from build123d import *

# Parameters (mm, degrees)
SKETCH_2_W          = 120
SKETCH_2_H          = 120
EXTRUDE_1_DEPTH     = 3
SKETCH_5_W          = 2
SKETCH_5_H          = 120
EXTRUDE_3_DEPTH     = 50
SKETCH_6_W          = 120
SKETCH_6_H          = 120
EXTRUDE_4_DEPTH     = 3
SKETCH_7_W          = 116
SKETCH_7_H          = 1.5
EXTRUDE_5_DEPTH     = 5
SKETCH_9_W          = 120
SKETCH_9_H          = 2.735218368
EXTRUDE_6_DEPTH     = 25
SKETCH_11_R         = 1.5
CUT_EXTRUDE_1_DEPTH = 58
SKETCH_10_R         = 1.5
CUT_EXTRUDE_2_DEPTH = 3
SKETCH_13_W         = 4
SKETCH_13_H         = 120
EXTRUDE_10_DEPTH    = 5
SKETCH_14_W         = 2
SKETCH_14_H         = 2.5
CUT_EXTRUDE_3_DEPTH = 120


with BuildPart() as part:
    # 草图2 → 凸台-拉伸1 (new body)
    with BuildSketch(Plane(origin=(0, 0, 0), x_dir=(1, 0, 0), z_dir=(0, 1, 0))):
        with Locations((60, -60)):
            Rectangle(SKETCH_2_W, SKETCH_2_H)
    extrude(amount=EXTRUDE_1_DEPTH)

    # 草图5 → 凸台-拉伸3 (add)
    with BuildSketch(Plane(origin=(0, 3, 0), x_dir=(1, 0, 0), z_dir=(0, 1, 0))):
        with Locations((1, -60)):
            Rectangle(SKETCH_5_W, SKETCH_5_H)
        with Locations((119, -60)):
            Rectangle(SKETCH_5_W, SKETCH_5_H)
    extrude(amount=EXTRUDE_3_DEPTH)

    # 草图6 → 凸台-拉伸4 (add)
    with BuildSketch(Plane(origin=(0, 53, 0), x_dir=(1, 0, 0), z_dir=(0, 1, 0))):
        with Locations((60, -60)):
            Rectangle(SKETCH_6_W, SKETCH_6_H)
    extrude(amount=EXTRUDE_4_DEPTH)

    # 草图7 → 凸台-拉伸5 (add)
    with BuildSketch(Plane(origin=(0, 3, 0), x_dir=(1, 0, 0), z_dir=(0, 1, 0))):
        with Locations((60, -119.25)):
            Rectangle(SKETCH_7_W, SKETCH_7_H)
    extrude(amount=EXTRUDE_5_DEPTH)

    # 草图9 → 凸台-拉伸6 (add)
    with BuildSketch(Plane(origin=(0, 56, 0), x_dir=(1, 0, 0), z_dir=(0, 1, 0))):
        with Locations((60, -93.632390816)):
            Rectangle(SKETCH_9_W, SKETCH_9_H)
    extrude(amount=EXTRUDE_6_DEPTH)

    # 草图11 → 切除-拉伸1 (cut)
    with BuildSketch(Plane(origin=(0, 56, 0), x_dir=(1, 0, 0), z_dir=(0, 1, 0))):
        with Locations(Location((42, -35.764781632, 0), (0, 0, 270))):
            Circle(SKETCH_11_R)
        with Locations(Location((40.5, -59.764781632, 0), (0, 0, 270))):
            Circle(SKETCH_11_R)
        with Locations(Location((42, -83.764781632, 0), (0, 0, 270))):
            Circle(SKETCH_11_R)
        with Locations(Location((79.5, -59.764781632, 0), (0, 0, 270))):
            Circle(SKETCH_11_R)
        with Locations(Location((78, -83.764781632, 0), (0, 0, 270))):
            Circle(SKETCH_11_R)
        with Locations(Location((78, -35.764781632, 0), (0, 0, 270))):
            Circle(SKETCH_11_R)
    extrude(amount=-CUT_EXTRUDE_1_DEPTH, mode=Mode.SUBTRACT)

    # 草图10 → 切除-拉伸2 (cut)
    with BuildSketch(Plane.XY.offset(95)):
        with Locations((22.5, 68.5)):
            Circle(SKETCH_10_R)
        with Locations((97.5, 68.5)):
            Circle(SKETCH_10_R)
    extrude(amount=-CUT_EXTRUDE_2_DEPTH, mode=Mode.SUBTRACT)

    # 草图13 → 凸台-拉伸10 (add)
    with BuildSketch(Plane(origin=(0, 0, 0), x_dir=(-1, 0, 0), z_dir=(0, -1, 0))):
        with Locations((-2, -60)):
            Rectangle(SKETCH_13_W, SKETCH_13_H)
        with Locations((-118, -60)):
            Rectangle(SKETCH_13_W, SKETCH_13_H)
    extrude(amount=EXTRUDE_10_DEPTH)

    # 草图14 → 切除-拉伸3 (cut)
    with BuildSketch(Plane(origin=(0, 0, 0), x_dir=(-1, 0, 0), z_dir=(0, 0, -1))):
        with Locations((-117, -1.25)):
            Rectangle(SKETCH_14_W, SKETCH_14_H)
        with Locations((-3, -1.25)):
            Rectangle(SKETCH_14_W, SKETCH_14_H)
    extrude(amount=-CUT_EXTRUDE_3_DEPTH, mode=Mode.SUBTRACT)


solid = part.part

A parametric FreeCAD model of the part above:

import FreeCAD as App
import Part
import Sketcher
Q = App.Units.Quantity

doc = App.newDocument("Part")
body = doc.addObject("PartDesign::Body", "Body")

sketch1 = doc.addObject("Sketcher::SketchObject", "Sketch")
body.addObject(sketch1)
sketch1.AttachmentSupport = (doc.XZ_Plane, [""])
sketch1.MapMode = "FlatFace"
sketch1.addGeometry([
    Part.LineSegment(App.Vector(0, 0, 0), App.Vector(0, 120, 0)),
    Part.LineSegment(App.Vector(0, 120, 0), App.Vector(120, 120, 0)),
    Part.LineSegment(App.Vector(120, 120, 0), App.Vector(120, 0, 0)),
    Part.LineSegment(App.Vector(120, 0, 0), App.Vector(0, 0, 0)),
], False)
sketch1.addConstraint([
    Sketcher.Constraint("Coincident", 0, 2, 1, 1),
    Sketcher.Constraint("Coincident", 1, 2, 2, 1),
    Sketcher.Constraint("Coincident", 2, 2, 3, 1),
    Sketcher.Constraint("Coincident", 3, 2, 0, 1),
    Sketcher.Constraint("Vertical", 0),
    Sketcher.Constraint("Horizontal", 1),
    Sketcher.Constraint("Vertical", 2),
    Sketcher.Constraint("Horizontal", 3),
    Sketcher.Constraint("Coincident", 3, 2, -1, 1),
    Sketcher.Constraint("Equal", 3, 0),
    Sketcher.Constraint("DistanceX", 1, 1, 1, 2, Q("120 mm")),
])
pad1 = doc.addObject("PartDesign::Pad", "Pad")
body.addObject(pad1)
pad1.Profile = sketch1
pad1.Length = 3
pad1.Reversed = True

sketch2 = doc.addObject("Sketcher::SketchObject", "Sketch001")
body.addObject(sketch2)
sketch2.AttachmentSupport = (doc.XZ_Plane, [""])
sketch2.MapMode = "FlatFace"
sketch2.AttachmentOffset = App.Placement(App.Vector(0, 0, -3), App.Rotation())
sketch2.addGeometry([
    Part.LineSegment(App.Vector(0, 0, 0), App.Vector(0, 120, 0)),
    Part.LineSegment(App.Vector(0, 120, 0), App.Vector(2, 120, 0)),
    Part.LineSegment(App.Vector(2, 120, 0), App.Vector(2, 0, 0)),
    Part.LineSegment(App.Vector(2, 0, 0), App.Vector(0, 0, 0)),
    Part.LineSegment(App.Vector(118, 0, 0), App.Vector(118, 120, 0)),
    Part.LineSegment(App.Vector(118, 120, 0), App.Vector(120, 120, 0)),
    Part.LineSegment(App.Vector(120, 120, 0), App.Vector(120, 0, 0)),
    Part.LineSegment(App.Vector(120, 0, 0), App.Vector(118, 0, 0)),
], False)
sketch2.addConstraint([
    Sketcher.Constraint("Coincident", 0, 2, 1, 1),
    Sketcher.Constraint("Coincident", 1, 2, 2, 1),
    Sketcher.Constraint("Coincident", 2, 2, 3, 1),
    Sketcher.Constraint("Coincident", 3, 2, 0, 1),
    Sketcher.Constraint("Coincident", 4, 2, 5, 1),
    Sketcher.Constraint("Coincident", 5, 2, 6, 1),
    Sketcher.Constraint("Coincident", 6, 2, 7, 1),
    Sketcher.Constraint("Coincident", 7, 2, 4, 1),
    Sketcher.Constraint("Vertical", 0),
    Sketcher.Constraint("Horizontal", 1),
    Sketcher.Constraint("Vertical", 2),
    Sketcher.Constraint("Horizontal", 3),
    Sketcher.Constraint("Vertical", 4),
    Sketcher.Constraint("Horizontal", 5),
    Sketcher.Constraint("Vertical", 6),
    Sketcher.Constraint("Horizontal", 7),
    Sketcher.Constraint("Coincident", 3, 2, -1, 1),
    Sketcher.Constraint("PointOnObject", 6, 2, -1),
    Sketcher.Constraint("Horizontal", 1, 2, 4, 2),
    Sketcher.Constraint("Equal", 3, 5),
    Sketcher.Constraint("DistanceX", 1, 1, 1, 2, Q("2 mm")),
    Sketcher.Constraint("DistanceY", 0, 1, 0, 2, Q("120 mm")),
    Sketcher.Constraint("DistanceX", -1, 1, 4, 2, Q("118 mm")),
])
pad2 = doc.addObject("PartDesign::Pad", "Pad001")
body.addObject(pad2)
pad2.Profile = sketch2
pad2.Length = 50
pad2.Reversed = True

sketch3 = doc.addObject("Sketcher::SketchObject", "Sketch002")
body.addObject(sketch3)
sketch3.AttachmentSupport = (doc.XZ_Plane, [""])
sketch3.MapMode = "FlatFace"
sketch3.AttachmentOffset = App.Placement(App.Vector(0, 0, -53), App.Rotation())
sketch3.addGeometry([
    Part.LineSegment(App.Vector(0, 0, 0), App.Vector(0, 120, 0)),
    Part.LineSegment(App.Vector(0, 120, 0), App.Vector(120, 120, 0)),
    Part.LineSegment(App.Vector(120, 120, 0), App.Vector(120, 0, 0)),
    Part.LineSegment(App.Vector(120, 0, 0), App.Vector(0, 0, 0)),
], False)
sketch3.addConstraint([
    Sketcher.Constraint("Coincident", 0, 2, 1, 1),
    Sketcher.Constraint("Coincident", 1, 2, 2, 1),
    Sketcher.Constraint("Coincident", 2, 2, 3, 1),
    Sketcher.Constraint("Coincident", 3, 2, 0, 1),
    Sketcher.Constraint("Vertical", 0),
    Sketcher.Constraint("Horizontal", 1),
    Sketcher.Constraint("Vertical", 2),
    Sketcher.Constraint("Horizontal", 3),
    Sketcher.Constraint("Coincident", 3, 2, -1, 1),
    Sketcher.Constraint("Equal", 3, 0),
    Sketcher.Constraint("DistanceX", 1, 1, 1, 2, Q("120 mm")),
])
pad3 = doc.addObject("PartDesign::Pad", "Pad002")
body.addObject(pad3)
pad3.Profile = sketch3
pad3.Length = 3
pad3.Reversed = True

sketch4 = doc.addObject("Sketcher::SketchObject", "Sketch003")
body.addObject(sketch4)
sketch4.AttachmentSupport = (doc.XZ_Plane, [""])
sketch4.MapMode = "FlatFace"
sketch4.AttachmentOffset = App.Placement(App.Vector(0, 0, -3), App.Rotation())
sketch4.addGeometry([
    Part.LineSegment(App.Vector(2, 118.5, 0), App.Vector(2, 120, 0)),
    Part.LineSegment(App.Vector(2, 120, 0), App.Vector(118, 120, 0)),
    Part.LineSegment(App.Vector(118, 120, 0), App.Vector(118, 118.5, 0)),
    Part.LineSegment(App.Vector(118, 118.5, 0), App.Vector(2, 118.5, 0)),
], False)
sketch4.addConstraint([
    Sketcher.Constraint("Coincident", 0, 2, 1, 1),
    Sketcher.Constraint("Coincident", 1, 2, 2, 1),
    Sketcher.Constraint("Coincident", 2, 2, 3, 1),
    Sketcher.Constraint("Coincident", 3, 2, 0, 1),
    Sketcher.Constraint("Vertical", 0),
    Sketcher.Constraint("Horizontal", 1),
    Sketcher.Constraint("Vertical", 2),
    Sketcher.Constraint("Horizontal", 3),
    Sketcher.Constraint("DistanceX", 1, 1, 1, 2, Q("116 mm")),
    Sketcher.Constraint("DistanceY", 0, 1, 0, 2, Q("1.5 mm")),
    Sketcher.Constraint("DistanceX", -1, 1, 0, 2, Q("2 mm")),
    Sketcher.Constraint("DistanceY", -1, 1, 0, 2, Q("120 mm")),
])
pad4 = doc.addObject("PartDesign::Pad", "Pad003")
body.addObject(pad4)
pad4.Profile = sketch4
pad4.Length = 5
pad4.Reversed = True

sketch5 = doc.addObject("Sketcher::SketchObject", "Sketch004")
body.addObject(sketch5)
sketch5.AttachmentSupport = (doc.XZ_Plane, [""])
sketch5.MapMode = "FlatFace"
sketch5.AttachmentOffset = App.Placement(App.Vector(0, 0, -56), App.Rotation())
sketch5.addGeometry([
    Part.LineSegment(App.Vector(0, 92.3, 0), App.Vector(0, 95, 0)),
    Part.LineSegment(App.Vector(0, 95, 0), App.Vector(120, 95, 0)),
    Part.LineSegment(App.Vector(120, 95, 0), App.Vector(120, 92.3, 0)),
    Part.LineSegment(App.Vector(120, 92.3, 0), App.Vector(0, 92.3, 0)),
], False)
sketch5.addConstraint([
    Sketcher.Constraint("Coincident", 0, 2, 1, 1),
    Sketcher.Constraint("Coincident", 1, 2, 2, 1),
    Sketcher.Constraint("Coincident", 2, 2, 3, 1),
    Sketcher.Constraint("Coincident", 3, 2, 0, 1),
    Sketcher.Constraint("Vertical", 0),
    Sketcher.Constraint("Horizontal", 1),
    Sketcher.Constraint("Vertical", 2),
    Sketcher.Constraint("Horizontal", 3),
    Sketcher.Constraint("PointOnObject", 0, 2, -2),
    Sketcher.Constraint("DistanceX", 1, 1, 1, 2, Q("120 mm")),
    Sketcher.Constraint("DistanceY", -1, 1, 0, 2, Q("95 mm")),
    Sketcher.Constraint("DistanceY", 0, 1, 0, 2, Q("2.735218 mm")),
])
pad5 = doc.addObject("PartDesign::Pad", "Pad004")
body.addObject(pad5)
pad5.Profile = sketch5
pad5.Length = 25
pad5.Reversed = True

sketch6 = doc.addObject("Sketcher::SketchObject", "Sketch005")
body.addObject(sketch6)
sketch6.AttachmentSupport = (doc.XZ_Plane, [""])
sketch6.MapMode = "FlatFace"
sketch6.AttachmentOffset = App.Placement(App.Vector(0, 0, -56), App.Rotation())
sketch6.addGeometry([
    Part.Circle(App.Vector(42, 35.8, 0), App.Vector(0, 0, 1), 1.5),
    Part.Circle(App.Vector(40.5, 59.8, 0), App.Vector(0, 0, 1), 1.5),
    Part.Circle(App.Vector(42, 83.8, 0), App.Vector(0, 0, 1), 1.5),
    Part.Circle(App.Vector(79.5, 59.8, 0), App.Vector(0, 0, 1), 1.5),
    Part.Circle(App.Vector(78, 83.8, 0), App.Vector(0, 0, 1), 1.5),
    Part.Circle(App.Vector(78, 35.8, 0), App.Vector(0, 0, 1), 1.5),
], False)
sketch6.addConstraint([
    Sketcher.Constraint("Equal", 0, 1),
    Sketcher.Constraint("Equal", 1, 2),
    Sketcher.Constraint("Equal", 2, 3),
    Sketcher.Constraint("Equal", 3, 4),
    Sketcher.Constraint("Equal", 4, 5),
    Sketcher.Constraint("Horizontal", 1, 3, 3, 3),
    Sketcher.Constraint("Horizontal", 2, 3, 4, 3),
    Sketcher.Constraint("Horizontal", 0, 3, 5, 3),
    Sketcher.Constraint("Vertical", 0, 3, 2, 3),
    Sketcher.Constraint("Vertical", 4, 3, 5, 3),
    Sketcher.Constraint("Diameter", 0, Q("3 mm")),
    Sketcher.Constraint("DistanceX", -1, 1, 0, 3, Q("42 mm")),
    Sketcher.Constraint("DistanceX", -1, 1, 4, 3, Q("78 mm")),
    Sketcher.Constraint("DistanceY", 0, 3, 1, 3, Q("24 mm")),
    Sketcher.Constraint("DistanceY", 1, 3, 2, 3, Q("24 mm")),
    Sketcher.Constraint("DistanceX", 1, 3, 3, 3, Q("39 mm")),
    Sketcher.Constraint("DistanceX", -1, 1, 1, 3, Q("40.5 mm")),
    Sketcher.Constraint("DistanceY", -1, 1, 0, 3, Q("35.764782 mm")),
])
pocket1 = doc.addObject("PartDesign::Pocket", "Pocket")
body.addObject(pocket1)
pocket1.Profile = sketch6
pocket1.Length = 58
pocket1.Reversed = True

sketch7 = doc.addObject("Sketcher::SketchObject", "Sketch006")
body.addObject(sketch7)
sketch7.AttachmentSupport = (doc.XY_Plane, [""])
sketch7.MapMode = "FlatFace"
sketch7.AttachmentOffset = App.Placement(App.Vector(0, 0, 95), App.Rotation())
sketch7.addGeometry([
    Part.Circle(App.Vector(22.5, 68.5, 0), App.Vector(0, 0, 1), 1.5),
    Part.Circle(App.Vector(97.5, 68.5, 0), App.Vector(0, 0, 1), 1.5),
], False)
sketch7.addConstraint([
    Sketcher.Constraint("Equal", 0, 1),
    Sketcher.Constraint("Horizontal", 0, 3, 1, 3),
    Sketcher.Constraint("Diameter", 0, Q("3 mm")),
    Sketcher.Constraint("DistanceX", 0, 3, 1, 3, Q("75 mm")),
    Sketcher.Constraint("DistanceX", -1, 1, 0, 3, Q("22.5 mm")),
    Sketcher.Constraint("DistanceY", -1, 1, 0, 3, Q("68.5 mm")),
])
pocket2 = doc.addObject("PartDesign::Pocket", "Pocket001")
body.addObject(pocket2)
pocket2.Profile = sketch7
pocket2.Length = 3

sketch8 = doc.addObject("Sketcher::SketchObject", "Sketch007")
body.addObject(sketch8)
sketch8.AttachmentSupport = (doc.XZ_Plane, [""])
sketch8.MapMode = "FlatFace"
sketch8.addGeometry([
    Part.LineSegment(App.Vector(4, 0, 0), App.Vector(4, 120, 0)),
    Part.LineSegment(App.Vector(4, 120, 0), App.Vector(0, 120, 0)),
    Part.LineSegment(App.Vector(0, 120, 0), App.Vector(0, 0, 0)),
    Part.LineSegment(App.Vector(0, 0, 0), App.Vector(4, 0, 0)),
    Part.LineSegment(App.Vector(120, 0, 0), App.Vector(120, 120, 0)),
    Part.LineSegment(App.Vector(120, 120, 0), App.Vector(116, 120, 0)),
    Part.LineSegment(App.Vector(116, 120, 0), App.Vector(116, 0, 0)),
    Part.LineSegment(App.Vector(116, 0, 0), App.Vector(120, 0, 0)),
], False)
sketch8.addConstraint([
    Sketcher.Constraint("Coincident", 0, 2, 1, 1),
    Sketcher.Constraint("Coincident", 1, 2, 2, 1),
    Sketcher.Constraint("Coincident", 2, 2, 3, 1),
    Sketcher.Constraint("Coincident", 3, 2, 0, 1),
    Sketcher.Constraint("Coincident", 4, 2, 5, 1),
    Sketcher.Constraint("Coincident", 5, 2, 6, 1),
    Sketcher.Constraint("Coincident", 6, 2, 7, 1),
    Sketcher.Constraint("Coincident", 7, 2, 4, 1),
    Sketcher.Constraint("Vertical", 0),
    Sketcher.Constraint("Horizontal", 1),
    Sketcher.Constraint("Vertical", 2),
    Sketcher.Constraint("Horizontal", 3),
    Sketcher.Constraint("Vertical", 4),
    Sketcher.Constraint("Horizontal", 5),
    Sketcher.Constraint("Vertical", 6),
    Sketcher.Constraint("Horizontal", 7),
    Sketcher.Constraint("Coincident", 2, 2, -1, 1),
    Sketcher.Constraint("PointOnObject", 6, 2, -1),
    Sketcher.Constraint("Horizontal", 1, 2, 4, 2),
    Sketcher.Constraint("Equal", 3, 5),
    Sketcher.Constraint("DistanceX", 1, 2, 1, 1, Q("4 mm")),
    Sketcher.Constraint("DistanceY", 0, 1, 0, 2, Q("120 mm")),
    Sketcher.Constraint("DistanceX", -1, 1, 4, 2, Q("120 mm")),
])
pad6 = doc.addObject("PartDesign::Pad", "Pad005")
body.addObject(pad6)
pad6.Profile = sketch8
pad6.Length = 5

sketch9 = doc.addObject("Sketcher::SketchObject", "Sketch008")
body.addObject(sketch9)
sketch9.AttachmentSupport = (doc.XY_Plane, [""])
sketch9.MapMode = "FlatFace"
sketch9.addGeometry([
    Part.LineSegment(App.Vector(118, 0, 0), App.Vector(118, -2.5, 0)),
    Part.LineSegment(App.Vector(118, -2.5, 0), App.Vector(116, -2.5, 0)),
    Part.LineSegment(App.Vector(116, -2.5, 0), App.Vector(116, 0, 0)),
    Part.LineSegment(App.Vector(116, 0, 0), App.Vector(118, 0, 0)),
    Part.LineSegment(App.Vector(4, 0, 0), App.Vector(4, -2.5, 0)),
    Part.LineSegment(App.Vector(4, -2.5, 0), App.Vector(2, -2.5, 0)),
    Part.LineSegment(App.Vector(2, -2.5, 0), App.Vector(2, 0, 0)),
    Part.LineSegment(App.Vector(2, 0, 0), App.Vector(4, 0, 0)),
], False)
sketch9.addConstraint([
    Sketcher.Constraint("Coincident", 0, 2, 1, 1),
    Sketcher.Constraint("Coincident", 1, 2, 2, 1),
    Sketcher.Constraint("Coincident", 2, 2, 3, 1),
    Sketcher.Constraint("Coincident", 3, 2, 0, 1),
    Sketcher.Constraint("Coincident", 4, 2, 5, 1),
    Sketcher.Constraint("Coincident", 5, 2, 6, 1),
    Sketcher.Constraint("Coincident", 6, 2, 7, 1),
    Sketcher.Constraint("Coincident", 7, 2, 4, 1),
    Sketcher.Constraint("Vertical", 0),
    Sketcher.Constraint("Horizontal", 1),
    Sketcher.Constraint("Vertical", 2),
    Sketcher.Constraint("Horizontal", 3),
    Sketcher.Constraint("Vertical", 4),
    Sketcher.Constraint("Horizontal", 5),
    Sketcher.Constraint("Vertical", 6),
    Sketcher.Constraint("Horizontal", 7),
    Sketcher.Constraint("PointOnObject", 2, 2, -1),
    Sketcher.Constraint("PointOnObject", 6, 2, -1),
    Sketcher.Constraint("Horizontal", 1, 2, 4, 2),
    Sketcher.Constraint("Equal", 3, 5),
    Sketcher.Constraint("DistanceX", 1, 2, 1, 1, Q("2 mm")),
    Sketcher.Constraint("DistanceY", 0, 2, 0, 1, Q("2.5 mm")),
    Sketcher.Constraint("DistanceX", -1, 1, 0, 2, Q("118 mm")),
    Sketcher.Constraint("DistanceX", -1, 1, 4, 2, Q("4 mm")),
])
pocket3 = doc.addObject("PartDesign::Pocket", "Pocket002")
body.addObject(pocket3)
pocket3.Profile = sketch9
pocket3.Length = 120
pocket3.Reversed = True

doc.recompute()
